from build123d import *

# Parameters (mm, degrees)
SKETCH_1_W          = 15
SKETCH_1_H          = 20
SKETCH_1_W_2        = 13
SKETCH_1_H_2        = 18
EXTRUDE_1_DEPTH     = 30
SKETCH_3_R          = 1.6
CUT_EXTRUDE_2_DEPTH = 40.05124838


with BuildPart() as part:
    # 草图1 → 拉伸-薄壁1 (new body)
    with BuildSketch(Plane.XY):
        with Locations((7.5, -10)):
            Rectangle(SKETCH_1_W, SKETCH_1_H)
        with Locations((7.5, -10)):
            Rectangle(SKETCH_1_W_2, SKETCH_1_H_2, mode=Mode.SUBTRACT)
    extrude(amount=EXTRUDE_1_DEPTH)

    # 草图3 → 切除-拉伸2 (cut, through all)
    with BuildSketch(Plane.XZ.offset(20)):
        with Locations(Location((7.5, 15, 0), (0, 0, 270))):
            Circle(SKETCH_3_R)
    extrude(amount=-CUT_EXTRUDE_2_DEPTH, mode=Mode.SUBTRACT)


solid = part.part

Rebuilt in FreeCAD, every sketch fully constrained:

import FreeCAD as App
import Part
import Sketcher

V = App.Vector
Q = App.Units.Quantity

doc = App.newDocument("Part")
body = doc.addObject("PartDesign::Body", "Body")

# Sketch on XY plane
sketch1 = body.newObject("Sketcher::SketchObject", "Sketch")
sketch1.AttachmentSupport = (doc.getObject("XY_Plane"), [""])
sketch1.MapMode = "FlatFace"
sketch1.addGeometry([
    Part.LineSegment(V(0, 0, 0), V(0, -20, 0)),  # 0
    Part.LineSegment(V(0, -20, 0), V(15, -20, 0)),  # 1
    Part.LineSegment(V(15, -20, 0), V(15, 0, 0)),  # 2
    Part.LineSegment(V(15, 0, 0), V(0, 0, 0)),  # 3
    Part.LineSegment(V(14, -19, 0), V(1, -19, 0)),  # 4
    Part.LineSegment(V(1, -19, 0), V(1, -1, 0)),  # 5
    Part.LineSegment(V(1, -1, 0), V(14, -1, 0)),  # 6
    Part.LineSegment(V(14, -1, 0), V(14, -19, 0)),  # 7
], False)
sketch1.addConstraint([
    Sketcher.Constraint("Coincident", 0, 2, 1, 1),
    Sketcher.Constraint("Coincident", 1, 2, 2, 1),
    Sketcher.Constraint("Coincident", 2, 2, 3, 1),
    Sketcher.Constraint("Coincident", 3, 2, 0, 1),
    Sketcher.Constraint("Coincident", 4, 2, 5, 1),
    Sketcher.Constraint("Coincident", 5, 2, 6, 1),
    Sketcher.Constraint("Coincident", 6, 2, 7, 1),
    Sketcher.Constraint("Coincident", 7, 2, 4, 1),
    Sketcher.Constraint("Vertical", 0),
    Sketcher.Constraint("Horizontal", 1),
    Sketcher.Constraint("Vertical", 2),
    Sketcher.Constraint("Horizontal", 3),
    Sketcher.Constraint("Horizontal", 4),
    Sketcher.Constraint("Vertical", 5),
    Sketcher.Constraint("Horizontal", 6),
    Sketcher.Constraint("Vertical", 7),
    Sketcher.Constraint("Coincident", 3, 2, -1, 1),
    Sketcher.Constraint("DistanceX", 1, 1, 1, 2, Q("15 mm")),
    Sketcher.Constraint("DistanceX", 4, 2, 4, 1, Q("13 mm")),
    Sketcher.Constraint("DistanceY", 0, 2, 0, 1, Q("20 mm")),
    Sketcher.Constraint("DistanceY", 5, 1, 5, 2, Q("18 mm")),
    Sketcher.Constraint("DistanceX", -1, 1, 4, 2, Q("1 mm")),
    Sketcher.Constraint("DistanceY", 4, 2, -1, 1, Q("19 mm")),
])
pad1 = body.newObject("PartDesign::Pad", "Pad")
pad1.Profile = sketch1
pad1.Length = 30

# Sketch on XZ plane
sketch2 = body.newObject("Sketcher::SketchObject", "Sketch001")
sketch2.AttachmentSupport = (doc.getObject("XZ_Plane"), [""])
sketch2.MapMode = "FlatFace"
sketch2.AttachmentOffset = App.Placement(V(0, 0, 20), App.Rotation())
sketch2.addGeometry(Part.Circle(V(7.5, 15, 0), V(0, 0, 1), 1.6), False)
sketch2.addConstraint([
    Sketcher.Constraint("Diameter", 0, Q("3.2 mm")),
    Sketcher.Constraint("DistanceY", -1, 1, 0, 3, Q("15 mm")),
    Sketcher.Constraint("DistanceX", -1, 1, 0, 3, Q("7.5 mm")),
])
pocket1 = body.newObject("PartDesign::Pocket", "Pocket")
pocket1.Profile = sketch2
pocket1.Type = "ThroughAll"

doc.recompute()
